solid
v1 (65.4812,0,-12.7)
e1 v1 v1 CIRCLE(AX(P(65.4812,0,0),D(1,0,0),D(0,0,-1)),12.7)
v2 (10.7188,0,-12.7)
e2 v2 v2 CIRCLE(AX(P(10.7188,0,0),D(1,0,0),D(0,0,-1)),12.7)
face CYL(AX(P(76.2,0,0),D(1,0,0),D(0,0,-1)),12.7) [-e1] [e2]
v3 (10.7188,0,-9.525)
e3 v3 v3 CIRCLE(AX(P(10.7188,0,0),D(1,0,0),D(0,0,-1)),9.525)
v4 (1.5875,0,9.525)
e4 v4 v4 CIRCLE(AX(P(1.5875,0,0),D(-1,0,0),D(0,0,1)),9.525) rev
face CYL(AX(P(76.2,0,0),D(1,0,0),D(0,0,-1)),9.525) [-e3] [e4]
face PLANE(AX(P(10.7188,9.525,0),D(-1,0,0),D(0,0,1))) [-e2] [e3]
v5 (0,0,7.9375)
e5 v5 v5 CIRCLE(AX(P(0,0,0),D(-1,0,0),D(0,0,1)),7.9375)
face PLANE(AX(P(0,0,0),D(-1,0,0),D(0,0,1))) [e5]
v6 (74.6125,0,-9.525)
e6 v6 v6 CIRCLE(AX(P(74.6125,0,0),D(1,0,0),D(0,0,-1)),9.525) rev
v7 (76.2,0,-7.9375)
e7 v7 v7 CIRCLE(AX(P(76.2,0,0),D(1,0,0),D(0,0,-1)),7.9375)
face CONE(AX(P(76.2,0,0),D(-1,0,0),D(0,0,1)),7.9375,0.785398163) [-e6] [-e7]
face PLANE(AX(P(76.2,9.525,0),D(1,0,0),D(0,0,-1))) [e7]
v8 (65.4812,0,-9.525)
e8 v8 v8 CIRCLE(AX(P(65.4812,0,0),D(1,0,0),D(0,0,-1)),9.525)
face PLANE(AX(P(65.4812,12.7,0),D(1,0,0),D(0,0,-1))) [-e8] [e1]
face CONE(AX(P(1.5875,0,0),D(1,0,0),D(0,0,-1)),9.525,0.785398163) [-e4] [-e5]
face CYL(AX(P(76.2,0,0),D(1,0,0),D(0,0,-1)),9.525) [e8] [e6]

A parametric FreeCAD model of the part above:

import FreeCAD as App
import Part
import Sketcher
Q = App.Units.Quantity


def edges_at(feature, points):
    """Names of the edges that pass closest to the given points."""
    edges = feature.Shape.Edges
    near = lambda p: min(range(len(edges)), key=lambda i: edges[i].distToShape(Part.Vertex(*p))[0])
    return sorted({f"Edge{near(p) + 1}" for p in points})


def add_polygon(sketch, points):
    """Adds a closed chain of lines whose ends are joined by coincident constraints."""
    first, n = sketch.GeometryCount, len(points)
    for a, b in zip(points, points[1:] + points[:1]):
        sketch.addGeometry(Part.LineSegment(App.Vector(*a, 0), App.Vector(*b, 0)), False)
    for i in range(n):
        sketch.addConstraint(Sketcher.Constraint("Coincident", first + i, 2, first + (i + 1) % n, 1))

doc = App.newDocument("Part")
body = doc.addObject("PartDesign::Body", "Body")

# Sketch on XY plane
sketch1 = body.newObject("Sketcher::SketchObject", "Sketch")
sketch1.AttachmentSupport = (doc.getObject("XY_Plane"), [""])
sketch1.MapMode = "FlatFace"
add_polygon(sketch1, [(0, 9.5), (0, 0), (76.2, 0), (76.2, 9.5), (65.5, 9.5), (65.5, 12.7), (10.7, 12.7), (10.7, 9.5)])  # lines 0-7
sketch1.addConstraint(Sketcher.Constraint("Vertical", 0))
sketch1.addConstraint(Sketcher.Constraint("Horizontal", 1))
sketch1.addConstraint(Sketcher.Constraint("Vertical", 2))
sketch1.addConstraint(Sketcher.Constraint("Horizontal", 3))
sketch1.addConstraint(Sketcher.Constraint("Vertical", 4))
sketch1.addConstraint(Sketcher.Constraint("Horizontal", 5))
sketch1.addConstraint(Sketcher.Constraint("Vertical", 6))
sketch1.addConstraint(Sketcher.Constraint("Horizontal", 7))
sketch1.addConstraint(Sketcher.Constraint("Coincident", 0, 2, -1, 1))
sketch1.addConstraint(Sketcher.Constraint("Horizontal", 3, 2, 6, 2))
sketch1.addConstraint(Sketcher.Constraint("Equal", 3, 7))
sketch1.addConstraint(Sketcher.Constraint("DistanceX", 1, 1, 1, 2, Q("3 in")))
sketch1.addConstraint(Sketcher.Constraint("DistanceY", -1, 1, 4, 2, Q("0.5 in")))
sketch1.addConstraint(Sketcher.Constraint("DistanceX", 3, 2, 3, 1, Q("0.422 in")))
sketch1.addConstraint(Sketcher.Constraint("DistanceY", 0, 2, 0, 1, Q("0.375 in")))
revolution = body.newObject("PartDesign::Revolution", "Revolution")
revolution.Profile = sketch1
revolution.ReferenceAxis = (sketch1, ["H_Axis"])
revolution.Angle = 360
doc.recompute()

chamfer = body.newObject("PartDesign::Chamfer", "Chamfer")
chamfer.Base = (revolution, edges_at(revolution, [(76.2, -9.525, 0)]))
chamfer.Size = Q("0.0625 in")
doc.recompute()

chamfer2 = body.newObject("PartDesign::Chamfer", "Chamfer001")
chamfer2.Base = (chamfer, edges_at(chamfer, [(0, -9.525, 0)]))
chamfer2.Size = Q("0.0625 in")

doc.recompute()
